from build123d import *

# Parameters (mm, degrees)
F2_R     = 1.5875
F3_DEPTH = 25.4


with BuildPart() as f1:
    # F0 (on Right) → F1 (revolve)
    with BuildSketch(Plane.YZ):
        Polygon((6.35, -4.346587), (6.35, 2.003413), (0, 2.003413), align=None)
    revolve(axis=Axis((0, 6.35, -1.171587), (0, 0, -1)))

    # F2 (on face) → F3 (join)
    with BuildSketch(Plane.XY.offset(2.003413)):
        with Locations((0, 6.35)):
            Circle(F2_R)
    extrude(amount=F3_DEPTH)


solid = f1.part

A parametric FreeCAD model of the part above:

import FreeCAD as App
import Part
import Sketcher
Q = App.Units.Quantity

doc = App.newDocument("Part")
params = doc.addObject("Spreadsheet::Sheet", "Params")
for row, (alias, value) in enumerate([
    ("sketch1_width", "0.25 in"),
    ("revolution_angle", "360 deg"),
    ("sketch2_diameter", "0.125 in"),
    ("pad1_length", "1 in"),
], start=1):
    params.set(f"A{row}", alias)
    params.set(f"B{row}", "=" + value)
    params.setAlias(f"B{row}", alias)

body = doc.addObject("PartDesign::Body", "Body")

# Sketch on YZ plane
sketch1 = body.newObject("Sketcher::SketchObject", "Sketch")
sketch1.AttachmentSupport = (doc.getObject("YZ_Plane"), [""])
sketch1.MapMode = "FlatFace"
sketch1.addGeometry([
    Part.LineSegment(App.Vector(6.35, -4.346587, 0), App.Vector(6.35, 2.003413, 0)),
    Part.LineSegment(App.Vector(6.35, 2.003413, 0), App.Vector(0, 2.003413, 0)),
    Part.LineSegment(App.Vector(0, 2.003413, 0), App.Vector(6.35, -4.346587, 0)),
], False)
sketch1.addGeometry(Part.LineSegment(App.Vector(6.35, 2.003413, 0), App.Vector(6.35, -4.346587, 0)), True)  # axis
sketch1.addConstraint([
    Sketcher.Constraint("Coincident", 0, 2, 1, 1),
    Sketcher.Constraint("Coincident", 1, 2, 2, 1),
    Sketcher.Constraint("Coincident", 2, 2, 0, 1),
    Sketcher.Constraint("Vertical", 0),
    Sketcher.Constraint("Horizontal", 1),
    Sketcher.Constraint("Vertical", 3),
    Sketcher.Constraint("Coincident", 3, 1, 0, 2),
    Sketcher.Constraint("PointOnObject", 1, 2, -2),
    Sketcher.Constraint("Equal", 1, 0),
    Sketcher.Constraint("Equal", 0, 3),
    Sketcher.Constraint("DistanceX", 1, 2, 1, 1, Q("0.25 in")),
    Sketcher.Constraint("DistanceY", -1, 1, 0, 2, 2.003413),
])
sketch1.setExpression("Constraints[10]", "Params.sketch1_width")
revolution = body.newObject("PartDesign::Revolution", "Revolution")
revolution.Profile = sketch1
revolution.ReferenceAxis = (sketch1, ["Axis0"])
revolution.setExpression("Angle", "Params.revolution_angle")

# Sketch on XY plane
sketch2 = body.newObject("Sketcher::SketchObject", "Sketch001")
sketch2.AttachmentSupport = (doc.getObject("XY_Plane"), [""])
sketch2.MapMode = "FlatFace"
sketch2.AttachmentOffset = App.Placement(App.Vector(0, 0, 2.003413), App.Rotation())
sketch2.addGeometry(Part.Circle(App.Vector(0, 6.35, 0), App.Vector(0, 0, 1), 1.5875), False)
sketch2.addConstraint([
    Sketcher.Constraint("PointOnObject", 0, 3, -2),
    Sketcher.Constraint("Diameter", 0, Q("0.125 in")),
    Sketcher.Constraint("DistanceY", -1, 1, 0, 3, Q("0.25 in")),
])
sketch2.setExpression("Constraints[1]", "Params.sketch2_diameter")
pad1 = body.newObject("PartDesign::Pad", "Pad")
pad1.Profile = sketch2
pad1.setExpression("Length", "Params.pad1_length")

doc.recompute()
